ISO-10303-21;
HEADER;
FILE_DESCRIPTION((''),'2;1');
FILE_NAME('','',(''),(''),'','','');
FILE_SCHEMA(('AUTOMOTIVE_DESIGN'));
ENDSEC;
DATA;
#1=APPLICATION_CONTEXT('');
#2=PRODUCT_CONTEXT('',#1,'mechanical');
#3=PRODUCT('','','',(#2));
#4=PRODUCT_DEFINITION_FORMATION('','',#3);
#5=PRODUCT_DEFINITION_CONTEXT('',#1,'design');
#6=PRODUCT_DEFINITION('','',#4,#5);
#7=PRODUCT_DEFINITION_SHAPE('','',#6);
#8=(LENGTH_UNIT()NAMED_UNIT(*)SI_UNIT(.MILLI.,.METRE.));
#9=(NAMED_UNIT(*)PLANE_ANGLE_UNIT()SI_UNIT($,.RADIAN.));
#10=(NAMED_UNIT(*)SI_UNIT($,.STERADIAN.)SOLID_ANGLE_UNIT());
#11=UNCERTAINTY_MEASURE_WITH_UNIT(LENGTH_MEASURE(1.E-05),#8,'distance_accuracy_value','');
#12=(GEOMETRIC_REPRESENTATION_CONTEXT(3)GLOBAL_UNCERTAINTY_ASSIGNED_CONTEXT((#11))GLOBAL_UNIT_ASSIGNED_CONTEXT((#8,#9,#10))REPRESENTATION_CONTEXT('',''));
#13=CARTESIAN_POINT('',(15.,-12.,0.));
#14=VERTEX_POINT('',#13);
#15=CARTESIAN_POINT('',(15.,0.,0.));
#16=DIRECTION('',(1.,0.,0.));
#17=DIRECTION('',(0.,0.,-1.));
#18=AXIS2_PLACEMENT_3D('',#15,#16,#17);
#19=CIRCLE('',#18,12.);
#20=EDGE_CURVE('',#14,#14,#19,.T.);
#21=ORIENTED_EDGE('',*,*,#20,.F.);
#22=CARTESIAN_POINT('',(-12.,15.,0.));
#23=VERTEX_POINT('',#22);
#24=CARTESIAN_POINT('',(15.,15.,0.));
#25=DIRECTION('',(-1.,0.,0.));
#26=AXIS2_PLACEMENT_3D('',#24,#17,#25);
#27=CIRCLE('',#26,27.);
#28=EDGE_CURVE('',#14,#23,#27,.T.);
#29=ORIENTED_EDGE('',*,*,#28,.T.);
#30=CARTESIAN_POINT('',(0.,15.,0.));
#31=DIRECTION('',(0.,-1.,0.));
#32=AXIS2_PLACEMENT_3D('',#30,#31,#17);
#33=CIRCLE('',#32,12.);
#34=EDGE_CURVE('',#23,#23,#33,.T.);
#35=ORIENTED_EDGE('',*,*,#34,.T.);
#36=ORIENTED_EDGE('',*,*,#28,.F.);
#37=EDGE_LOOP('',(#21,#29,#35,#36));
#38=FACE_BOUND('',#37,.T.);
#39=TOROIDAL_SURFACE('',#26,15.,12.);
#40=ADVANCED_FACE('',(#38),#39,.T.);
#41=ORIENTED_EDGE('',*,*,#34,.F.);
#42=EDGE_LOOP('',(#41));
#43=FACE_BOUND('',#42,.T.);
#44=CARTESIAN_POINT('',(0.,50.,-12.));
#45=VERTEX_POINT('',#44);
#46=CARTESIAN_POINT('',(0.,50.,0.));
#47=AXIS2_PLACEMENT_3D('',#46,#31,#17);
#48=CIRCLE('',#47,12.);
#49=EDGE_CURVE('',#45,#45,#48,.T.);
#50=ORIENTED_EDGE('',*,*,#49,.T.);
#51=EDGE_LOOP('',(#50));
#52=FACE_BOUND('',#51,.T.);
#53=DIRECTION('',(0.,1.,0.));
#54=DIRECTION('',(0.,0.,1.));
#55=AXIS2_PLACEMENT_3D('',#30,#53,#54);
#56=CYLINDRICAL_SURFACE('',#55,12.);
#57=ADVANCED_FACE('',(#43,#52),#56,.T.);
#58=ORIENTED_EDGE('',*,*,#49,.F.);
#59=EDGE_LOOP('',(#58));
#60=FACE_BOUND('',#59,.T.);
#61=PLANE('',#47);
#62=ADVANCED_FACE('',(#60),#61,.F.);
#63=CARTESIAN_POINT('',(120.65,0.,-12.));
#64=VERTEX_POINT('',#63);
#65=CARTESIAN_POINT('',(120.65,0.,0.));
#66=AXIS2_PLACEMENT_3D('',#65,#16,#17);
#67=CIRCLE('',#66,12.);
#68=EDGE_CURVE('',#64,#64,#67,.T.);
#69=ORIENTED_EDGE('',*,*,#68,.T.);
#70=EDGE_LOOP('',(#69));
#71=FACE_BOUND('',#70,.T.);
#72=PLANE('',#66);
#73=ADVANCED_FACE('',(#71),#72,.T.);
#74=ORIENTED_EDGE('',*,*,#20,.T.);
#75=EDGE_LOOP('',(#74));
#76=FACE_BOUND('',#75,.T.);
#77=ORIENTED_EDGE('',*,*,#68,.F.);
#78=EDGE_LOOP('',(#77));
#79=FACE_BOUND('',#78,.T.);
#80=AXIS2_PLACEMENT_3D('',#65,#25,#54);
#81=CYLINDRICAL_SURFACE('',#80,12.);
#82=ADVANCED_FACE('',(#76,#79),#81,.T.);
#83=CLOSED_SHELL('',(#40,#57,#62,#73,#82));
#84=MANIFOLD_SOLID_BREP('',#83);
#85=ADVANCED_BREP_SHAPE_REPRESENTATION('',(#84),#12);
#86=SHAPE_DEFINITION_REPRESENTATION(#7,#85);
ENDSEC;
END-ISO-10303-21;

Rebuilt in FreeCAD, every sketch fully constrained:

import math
import FreeCAD as App
import Part
import Sketcher

V = App.Vector

doc = App.newDocument("Part")
params = doc.addObject("Spreadsheet::Sheet", "Params")
for row, (alias, value) in enumerate([
    ("sketch1_diameter", "24 mm"),
    ("sketch2_radius", "15 mm"),
    ("sketch2_height", "35 mm"),
    ("sketch2_width", "105.65 mm"),
], start=1):
    params.set(f"A{row}", alias)
    params.set(f"B{row}", "=" + value)
    params.setAlias(f"B{row}", alias)

body = doc.addObject("PartDesign::Body", "Body")

# Sketch on YZ plane
sketch1 = body.newObject("Sketcher::SketchObject", "Sketch")
sketch1.AttachmentSupport = (doc.getObject("YZ_Plane"), [""])
sketch1.MapMode = "FlatFace"
sketch1.AttachmentOffset = App.Placement(V(0, 0, 120.65), App.Rotation())
sketch1.addGeometry(Part.Circle(V(0, 0, 0), V(0, 0, 1), 12), False)
sketch1.addConstraint(Sketcher.Constraint("Coincident", 0, 3, -1, 1))
sketch1.addConstraint(Sketcher.Constraint("Diameter", 0, 24.0))
sketch1.setExpression("Constraints[1]", "Params.sketch1_diameter")

# Sketch on XY plane
sketch2 = body.newObject("Sketcher::SketchObject", "Sketch001")
sketch2.AttachmentSupport = (doc.getObject("XY_Plane"), [""])
sketch2.MapMode = "FlatFace"
sketch2.addGeometry(Part.LineSegment(V(121, 0, 0), V(15, 0, 0)), False)
sketch2.addGeometry(Part.ArcOfCircle(Part.Circle(V(15, 15, 0), V(0, 0, 1), 15), math.radians(180), math.radians(270)), False)
sketch2.addGeometry(Part.LineSegment(V(0, 15, 0), V(0, 50, 0)), False)
sketch2.addConstraint(Sketcher.Constraint("Tangent", 0, 2, 1, 2))
sketch2.addConstraint(Sketcher.Constraint("Tangent", 1, 1, 2, 1))
sketch2.addConstraint(Sketcher.Constraint("Horizontal", 0))
sketch2.addConstraint(Sketcher.Constraint("Vertical", 2))
sketch2.addConstraint(Sketcher.Constraint("PointOnObject", 0, 1, -1))
sketch2.addConstraint(Sketcher.Constraint("PointOnObject", 1, 1, -2))
sketch2.addConstraint(Sketcher.Constraint("Radius", 1, 15.0))
sketch2.addConstraint(Sketcher.Constraint("DistanceY", 2, 1, 2, 2, 35.0))
sketch2.addConstraint(Sketcher.Constraint("DistanceX", 0, 2, 0, 1, 105.65))
sketch2.setExpression("Constraints[6]", "Params.sketch2_radius")
sketch2.setExpression("Constraints[7]", "Params.sketch2_height")
sketch2.setExpression("Constraints[8]", "Params.sketch2_width")
doc.recompute()

additivepipe = body.newObject("PartDesign::AdditivePipe", "AdditivePipe")
additivepipe.Profile = sketch1
additivepipe.Spine = (sketch2, ["Edge1", "Edge2", "Edge3"])

doc.recompute()
